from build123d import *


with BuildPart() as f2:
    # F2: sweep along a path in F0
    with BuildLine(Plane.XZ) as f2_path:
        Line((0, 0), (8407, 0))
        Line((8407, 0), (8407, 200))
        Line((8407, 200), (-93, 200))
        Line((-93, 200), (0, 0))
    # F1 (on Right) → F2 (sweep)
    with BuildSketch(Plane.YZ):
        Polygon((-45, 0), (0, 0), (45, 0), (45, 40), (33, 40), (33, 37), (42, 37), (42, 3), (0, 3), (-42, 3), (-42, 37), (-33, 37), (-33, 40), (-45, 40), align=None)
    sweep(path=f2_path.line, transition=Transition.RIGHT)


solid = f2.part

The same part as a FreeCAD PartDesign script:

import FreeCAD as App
import Part
import Sketcher
Q = App.Units.Quantity


def add_polygon(sketch, points):
    """Adds a closed chain of lines whose ends are joined by coincident constraints."""
    first, n = sketch.GeometryCount, len(points)
    for a, b in zip(points, points[1:] + points[:1]):
        sketch.addGeometry(Part.LineSegment(App.Vector(*a, 0), App.Vector(*b, 0)), False)
    for i in range(n):
        sketch.addConstraint(Sketcher.Constraint("Coincident", first + i, 2, first + (i + 1) % n, 1))

doc = App.newDocument("Part")
body = doc.addObject("PartDesign::Body", "Body")

# Sketch on YZ plane
sketch1 = body.newObject("Sketcher::SketchObject", "Sketch")
sketch1.AttachmentSupport = (doc.getObject("YZ_Plane"), [""])
sketch1.MapMode = "FlatFace"
add_polygon(sketch1, [(-45, 0), (45, 0), (45, 40), (33, 40), (33, 37), (42, 37), (42, 3), (-42, 3), (-42, 37), (-33, 37), (-33, 40), (-45, 40)])  # lines 0-11
sketch1.addConstraint([
    Sketcher.Constraint("Horizontal", 0),
    Sketcher.Constraint("Vertical", 1),
    Sketcher.Constraint("Horizontal", 2),
    Sketcher.Constraint("Vertical", 3),
    Sketcher.Constraint("Horizontal", 4),
    Sketcher.Constraint("Vertical", 5),
    Sketcher.Constraint("Horizontal", 6),
    Sketcher.Constraint("Vertical", 7),
    Sketcher.Constraint("Horizontal", 8),
    Sketcher.Constraint("Vertical", 9),
    Sketcher.Constraint("Horizontal", 10),
    Sketcher.Constraint("Vertical", 11),
    Sketcher.Constraint("Symmetric", 0, 2, 11, 2, -1, 1),
    Sketcher.Constraint("Symmetric", 4, 2, 7, 2, -2),
    Sketcher.Constraint("Symmetric", 2, 2, 9, 2, -2),
    Sketcher.Constraint("DistanceX", 0, 1, 0, 2, Q("90 mm")),
    Sketcher.Constraint("DistanceX", 2, 2, 2, 1, Q("12 mm")),
    Sketcher.Constraint("DistanceX", 4, 1, 4, 2, Q("9 mm")),
    Sketcher.Constraint("DistanceY", 1, 1, 1, 2, Q("40 mm")),
    Sketcher.Constraint("DistanceY", 3, 2, 3, 1, Q("3 mm")),
    Sketcher.Constraint("DistanceY", 5, 2, 5, 1, Q("34 mm")),
])

# Sketch on XZ plane
sketch2 = body.newObject("Sketcher::SketchObject", "Sketch001")
sketch2.AttachmentSupport = (doc.getObject("XZ_Plane"), [""])
sketch2.MapMode = "FlatFace"
add_polygon(sketch2, [(0, 0), (8407, 0), (8407, 200), (-93, 200)])  # lines 0-3
sketch2.addConstraint([
    Sketcher.Constraint("Horizontal", 0),
    Sketcher.Constraint("Vertical", 1),
    Sketcher.Constraint("Horizontal", 2),
    Sketcher.Constraint("Coincident", 3, 2, -1, 1),
    Sketcher.Constraint("DistanceX", 0, 1, 0, 2, Q("8407 mm")),
    Sketcher.Constraint("DistanceX", 2, 2, 2, 1, Q("8500 mm")),
    Sketcher.Constraint("DistanceY", 1, 1, 1, 2, Q("200 mm")),
])
doc.recompute()

additivepipe = body.newObject("PartDesign::AdditivePipe", "AdditivePipe")
additivepipe.Profile = sketch1
additivepipe.Spine = (sketch2, ["Edge1", "Edge2", "Edge3", "Edge4"])
additivepipe.Transition = "Right corner"

doc.recompute()
